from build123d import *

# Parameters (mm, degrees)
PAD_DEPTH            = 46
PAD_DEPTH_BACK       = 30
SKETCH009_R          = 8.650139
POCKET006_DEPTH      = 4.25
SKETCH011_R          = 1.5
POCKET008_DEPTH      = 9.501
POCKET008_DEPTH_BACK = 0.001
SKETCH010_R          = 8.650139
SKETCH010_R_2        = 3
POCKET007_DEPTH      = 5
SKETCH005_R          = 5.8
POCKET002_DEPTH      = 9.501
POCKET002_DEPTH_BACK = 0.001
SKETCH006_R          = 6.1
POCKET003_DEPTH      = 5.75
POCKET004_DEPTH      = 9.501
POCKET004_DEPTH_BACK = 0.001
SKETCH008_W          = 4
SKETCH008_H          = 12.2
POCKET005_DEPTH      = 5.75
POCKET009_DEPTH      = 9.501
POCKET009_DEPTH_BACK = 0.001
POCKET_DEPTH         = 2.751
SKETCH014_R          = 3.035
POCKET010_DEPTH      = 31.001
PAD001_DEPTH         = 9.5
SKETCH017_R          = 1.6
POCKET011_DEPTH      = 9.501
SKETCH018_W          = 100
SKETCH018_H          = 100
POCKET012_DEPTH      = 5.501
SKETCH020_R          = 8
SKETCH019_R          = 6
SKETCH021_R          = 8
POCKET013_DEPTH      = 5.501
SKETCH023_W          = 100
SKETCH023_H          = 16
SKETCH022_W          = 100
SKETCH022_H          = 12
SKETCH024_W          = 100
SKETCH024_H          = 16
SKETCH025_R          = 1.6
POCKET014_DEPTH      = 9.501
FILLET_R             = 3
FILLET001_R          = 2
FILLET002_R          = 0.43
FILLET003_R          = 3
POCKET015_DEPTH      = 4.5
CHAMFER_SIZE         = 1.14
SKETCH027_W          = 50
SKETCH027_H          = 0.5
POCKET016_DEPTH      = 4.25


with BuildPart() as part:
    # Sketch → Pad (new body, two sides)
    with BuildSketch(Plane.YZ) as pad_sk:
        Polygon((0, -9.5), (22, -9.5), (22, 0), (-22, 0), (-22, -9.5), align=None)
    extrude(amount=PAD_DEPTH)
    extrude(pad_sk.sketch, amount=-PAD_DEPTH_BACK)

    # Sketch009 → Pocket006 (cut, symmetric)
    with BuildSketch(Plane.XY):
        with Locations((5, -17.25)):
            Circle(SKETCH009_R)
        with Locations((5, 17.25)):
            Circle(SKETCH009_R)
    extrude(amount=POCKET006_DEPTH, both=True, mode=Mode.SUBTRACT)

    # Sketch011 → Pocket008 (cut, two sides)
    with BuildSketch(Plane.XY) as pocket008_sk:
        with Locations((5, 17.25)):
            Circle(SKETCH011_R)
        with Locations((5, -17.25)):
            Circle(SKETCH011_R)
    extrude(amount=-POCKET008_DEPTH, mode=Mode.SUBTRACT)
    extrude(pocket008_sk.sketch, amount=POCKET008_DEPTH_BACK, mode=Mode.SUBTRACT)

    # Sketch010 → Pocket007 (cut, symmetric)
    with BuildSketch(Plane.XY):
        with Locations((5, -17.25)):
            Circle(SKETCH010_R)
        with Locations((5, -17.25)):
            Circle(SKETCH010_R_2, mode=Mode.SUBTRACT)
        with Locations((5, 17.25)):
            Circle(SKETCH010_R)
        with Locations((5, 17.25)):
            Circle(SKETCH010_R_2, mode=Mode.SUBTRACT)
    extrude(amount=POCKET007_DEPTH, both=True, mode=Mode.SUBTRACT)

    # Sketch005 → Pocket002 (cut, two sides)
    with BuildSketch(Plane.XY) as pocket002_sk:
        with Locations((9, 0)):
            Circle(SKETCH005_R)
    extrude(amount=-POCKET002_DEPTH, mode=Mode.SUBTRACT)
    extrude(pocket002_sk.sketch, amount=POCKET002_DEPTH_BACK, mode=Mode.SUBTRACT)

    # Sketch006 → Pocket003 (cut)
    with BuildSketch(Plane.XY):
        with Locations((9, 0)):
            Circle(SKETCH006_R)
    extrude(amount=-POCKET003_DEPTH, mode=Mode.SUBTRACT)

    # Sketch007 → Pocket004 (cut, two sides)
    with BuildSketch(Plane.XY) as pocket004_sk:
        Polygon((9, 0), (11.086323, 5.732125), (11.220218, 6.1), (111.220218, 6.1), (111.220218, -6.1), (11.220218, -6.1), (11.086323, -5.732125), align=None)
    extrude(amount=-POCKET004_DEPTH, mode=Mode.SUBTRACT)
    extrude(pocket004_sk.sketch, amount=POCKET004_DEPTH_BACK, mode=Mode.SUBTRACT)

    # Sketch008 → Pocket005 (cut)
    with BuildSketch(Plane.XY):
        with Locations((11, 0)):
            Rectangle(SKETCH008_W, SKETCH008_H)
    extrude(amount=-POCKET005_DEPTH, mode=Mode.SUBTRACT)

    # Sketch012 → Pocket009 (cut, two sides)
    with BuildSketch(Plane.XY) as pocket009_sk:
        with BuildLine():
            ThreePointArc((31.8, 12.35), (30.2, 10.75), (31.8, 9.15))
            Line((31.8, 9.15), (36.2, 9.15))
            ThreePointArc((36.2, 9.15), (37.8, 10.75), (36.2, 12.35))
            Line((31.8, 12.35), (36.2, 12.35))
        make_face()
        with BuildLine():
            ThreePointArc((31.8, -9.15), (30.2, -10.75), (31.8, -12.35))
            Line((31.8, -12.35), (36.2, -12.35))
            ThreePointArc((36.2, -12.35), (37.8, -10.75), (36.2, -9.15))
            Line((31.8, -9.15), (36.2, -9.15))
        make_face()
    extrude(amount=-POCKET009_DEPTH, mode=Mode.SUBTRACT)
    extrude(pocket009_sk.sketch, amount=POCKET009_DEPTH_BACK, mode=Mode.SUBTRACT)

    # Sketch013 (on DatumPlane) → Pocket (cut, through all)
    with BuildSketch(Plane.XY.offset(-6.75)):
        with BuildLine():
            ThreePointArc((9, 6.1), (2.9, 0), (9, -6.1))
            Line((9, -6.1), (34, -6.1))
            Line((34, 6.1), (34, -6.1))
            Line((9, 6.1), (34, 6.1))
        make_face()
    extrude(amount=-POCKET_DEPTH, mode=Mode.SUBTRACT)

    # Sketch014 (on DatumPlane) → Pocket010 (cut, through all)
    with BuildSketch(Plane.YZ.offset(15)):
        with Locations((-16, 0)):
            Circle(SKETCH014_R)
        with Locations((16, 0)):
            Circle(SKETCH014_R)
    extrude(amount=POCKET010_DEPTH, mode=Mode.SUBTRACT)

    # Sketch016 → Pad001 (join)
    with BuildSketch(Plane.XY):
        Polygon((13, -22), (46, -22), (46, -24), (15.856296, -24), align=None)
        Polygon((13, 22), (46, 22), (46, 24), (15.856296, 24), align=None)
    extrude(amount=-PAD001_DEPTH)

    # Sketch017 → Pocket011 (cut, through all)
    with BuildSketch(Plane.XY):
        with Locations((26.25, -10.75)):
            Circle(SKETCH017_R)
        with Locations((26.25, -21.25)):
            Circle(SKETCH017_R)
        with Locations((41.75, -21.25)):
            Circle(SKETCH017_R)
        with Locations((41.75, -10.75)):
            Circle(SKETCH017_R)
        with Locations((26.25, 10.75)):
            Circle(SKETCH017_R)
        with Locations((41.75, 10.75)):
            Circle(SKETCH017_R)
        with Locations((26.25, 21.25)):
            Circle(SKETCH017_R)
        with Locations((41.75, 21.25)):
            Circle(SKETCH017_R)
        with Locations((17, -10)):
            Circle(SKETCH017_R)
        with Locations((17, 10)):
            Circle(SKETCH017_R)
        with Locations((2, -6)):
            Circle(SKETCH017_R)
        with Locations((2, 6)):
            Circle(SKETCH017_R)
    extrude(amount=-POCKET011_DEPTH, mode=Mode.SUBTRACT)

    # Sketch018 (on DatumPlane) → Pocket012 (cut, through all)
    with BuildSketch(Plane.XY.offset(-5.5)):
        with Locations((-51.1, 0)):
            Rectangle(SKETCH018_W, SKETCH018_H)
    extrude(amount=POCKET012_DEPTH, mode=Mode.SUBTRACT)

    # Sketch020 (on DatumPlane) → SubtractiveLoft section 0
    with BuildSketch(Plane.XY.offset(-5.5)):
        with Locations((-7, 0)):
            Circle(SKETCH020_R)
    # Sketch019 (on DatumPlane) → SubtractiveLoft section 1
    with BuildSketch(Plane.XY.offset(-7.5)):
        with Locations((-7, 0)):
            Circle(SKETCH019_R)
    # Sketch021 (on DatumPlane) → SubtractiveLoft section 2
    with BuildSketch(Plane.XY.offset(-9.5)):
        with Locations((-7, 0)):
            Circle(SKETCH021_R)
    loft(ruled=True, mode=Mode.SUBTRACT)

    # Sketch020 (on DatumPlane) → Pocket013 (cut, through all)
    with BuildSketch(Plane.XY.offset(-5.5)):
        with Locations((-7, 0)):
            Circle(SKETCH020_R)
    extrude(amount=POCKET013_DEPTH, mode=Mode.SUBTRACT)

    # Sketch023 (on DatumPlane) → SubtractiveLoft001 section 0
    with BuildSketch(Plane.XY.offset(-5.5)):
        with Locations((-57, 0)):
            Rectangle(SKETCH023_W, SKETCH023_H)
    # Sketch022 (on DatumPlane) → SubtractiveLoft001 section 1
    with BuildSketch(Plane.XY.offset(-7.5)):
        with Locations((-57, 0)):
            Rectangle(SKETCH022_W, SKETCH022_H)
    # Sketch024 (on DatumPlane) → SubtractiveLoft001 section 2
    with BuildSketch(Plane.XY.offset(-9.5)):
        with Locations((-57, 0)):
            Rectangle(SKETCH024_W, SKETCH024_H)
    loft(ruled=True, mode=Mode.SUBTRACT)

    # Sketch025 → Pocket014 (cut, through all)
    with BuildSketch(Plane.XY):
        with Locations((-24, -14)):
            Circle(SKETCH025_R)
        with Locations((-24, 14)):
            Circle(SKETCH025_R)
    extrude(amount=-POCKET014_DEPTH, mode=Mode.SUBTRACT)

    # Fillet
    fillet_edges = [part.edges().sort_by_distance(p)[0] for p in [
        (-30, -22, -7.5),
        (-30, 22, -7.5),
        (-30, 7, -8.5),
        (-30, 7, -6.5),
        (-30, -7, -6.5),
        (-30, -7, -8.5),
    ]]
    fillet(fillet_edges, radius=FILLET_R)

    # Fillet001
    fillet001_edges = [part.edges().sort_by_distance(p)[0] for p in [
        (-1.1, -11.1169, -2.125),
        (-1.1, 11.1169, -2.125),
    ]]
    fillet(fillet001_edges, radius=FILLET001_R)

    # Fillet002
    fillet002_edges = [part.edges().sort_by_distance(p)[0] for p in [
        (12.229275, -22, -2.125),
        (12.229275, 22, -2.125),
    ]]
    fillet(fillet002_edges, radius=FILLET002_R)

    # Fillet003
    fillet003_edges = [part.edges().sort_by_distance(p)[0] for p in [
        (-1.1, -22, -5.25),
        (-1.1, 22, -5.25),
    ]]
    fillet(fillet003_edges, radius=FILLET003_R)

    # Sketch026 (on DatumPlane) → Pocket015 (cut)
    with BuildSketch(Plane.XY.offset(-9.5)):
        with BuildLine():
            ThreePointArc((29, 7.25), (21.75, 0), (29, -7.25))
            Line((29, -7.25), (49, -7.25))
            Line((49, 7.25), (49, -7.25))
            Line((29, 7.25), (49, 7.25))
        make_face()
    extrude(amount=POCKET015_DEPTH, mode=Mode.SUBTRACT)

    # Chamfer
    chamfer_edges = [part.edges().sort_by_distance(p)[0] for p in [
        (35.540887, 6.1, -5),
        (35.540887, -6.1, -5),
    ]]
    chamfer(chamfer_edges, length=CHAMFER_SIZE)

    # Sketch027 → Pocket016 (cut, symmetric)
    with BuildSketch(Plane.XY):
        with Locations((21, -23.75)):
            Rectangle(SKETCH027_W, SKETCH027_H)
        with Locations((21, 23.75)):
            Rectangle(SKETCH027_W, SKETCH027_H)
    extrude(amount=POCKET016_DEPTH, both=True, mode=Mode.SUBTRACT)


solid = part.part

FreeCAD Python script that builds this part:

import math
import FreeCAD as App
import Part
import Sketcher
Q = App.Units.Quantity


def edges_at(feature, points):
    """Names of the edges that pass closest to the given points."""
    edges = feature.Shape.Edges
    near = lambda p: min(range(len(edges)), key=lambda i: edges[i].distToShape(Part.Vertex(*p))[0])
    return sorted({f"Edge{near(p) + 1}" for p in points})

doc = App.newDocument("Part")
body = doc.addObject("PartDesign::Body", "Body")

# Sketch on YZ plane
sketch1 = body.newObject("Sketcher::SketchObject", "Sketch")
sketch1.AttachmentSupport = (doc.getObject("YZ_Plane"), [""])
sketch1.MapMode = "FlatFace"
sketch1.addGeometry([
    Part.LineSegment(App.Vector(22, -9.5, 0), App.Vector(22, 0, 0)),
    Part.LineSegment(App.Vector(22, 0, 0), App.Vector(-22, 0, 0)),
    Part.LineSegment(App.Vector(-22, 0, 0), App.Vector(-22, -9.5, 0)),
    Part.LineSegment(App.Vector(-22, -9.5, 0), App.Vector(22, -9.5, 0)),
], False)
sketch1.addConstraint([
    Sketcher.Constraint("Coincident", 0, 2, 1, 1),
    Sketcher.Constraint("Coincident", 1, 2, 2, 1),
    Sketcher.Constraint("Coincident", 2, 2, 3, 1),
    Sketcher.Constraint("Coincident", 3, 2, 0, 1),
    Sketcher.Constraint("Vertical", 0),
    Sketcher.Constraint("Horizontal", 1),
    Sketcher.Constraint("Vertical", 2),
    Sketcher.Constraint("Horizontal", 3),
    Sketcher.Constraint("Symmetric", 0, 2, 1, 2, -1, 1),
    Sketcher.Constraint("DistanceX", 1, 2, 1, 1, Q("44 mm")),
    Sketcher.Constraint("DistanceY", 0, 1, 0, 2, Q("9.5 mm")),
])
pad1 = body.newObject("PartDesign::Pad", "Pad")
pad1.Profile = sketch1
pad1.Type = "TwoLengths"
pad1.Length = 46
pad1.Length2 = 30

# Sketch on XY plane
sketch2 = body.newObject("Sketcher::SketchObject", "Sketch001")
sketch2.AttachmentSupport = (doc.getObject("XY_Plane"), [""])
sketch2.MapMode = "FlatFace"
sketch2.addGeometry([
    Part.Circle(App.Vector(5, -17.25, 0), App.Vector(0, 0, 1), 8.650139),
    Part.Circle(App.Vector(5, 17.25, 0), App.Vector(0, 0, 1), 8.650139),
], False)
sketch2.addConstraint([
    Sketcher.Constraint("Equal", 0, 1),
    Sketcher.Constraint("Symmetric", 0, 3, 1, 3, -1),
    Sketcher.Constraint("DistanceX", -1, 1, 0, 3, Q("5 mm")),
    Sketcher.Constraint("DistanceY", 0, 3, 1, 3, Q("34.5 mm")),
    Sketcher.Constraint("Diameter", 0, Q("17.300278 mm")),
])
pocket1 = body.newObject("PartDesign::Pocket", "Pocket")
pocket1.Profile = sketch2
pocket1.Length = 8.5
pocket1.Midplane = True

# Sketch on XY plane
sketch3 = body.newObject("Sketcher::SketchObject", "Sketch002")
sketch3.AttachmentSupport = (doc.getObject("XY_Plane"), [""])
sketch3.MapMode = "FlatFace"
sketch3.addGeometry([
    Part.Circle(App.Vector(5, 17.25, 0), App.Vector(0, 0, 1), 1.5),
    Part.Circle(App.Vector(5, -17.25, 0), App.Vector(0, 0, 1), 1.5),
], False)
sketch3.addConstraint([
    Sketcher.Constraint("Equal", 0, 1),
    Sketcher.Constraint("Symmetric", 0, 3, 1, 3, -1),
    Sketcher.Constraint("Diameter", 0, Q("3 mm")),
    Sketcher.Constraint("DistanceX", -1, 1, 0, 3, Q("5 mm")),
    Sketcher.Constraint("DistanceY", 1, 3, 0, 3, Q("34.5 mm")),
])
pocket2 = body.newObject("PartDesign::Pocket", "Pocket001")
pocket2.Profile = sketch3
pocket2.Type = "ThroughAll"
pocket2.Midplane = True

# Sketch on XY plane
sketch4 = body.newObject("Sketcher::SketchObject", "Sketch003")
sketch4.AttachmentSupport = (doc.getObject("XY_Plane"), [""])
sketch4.MapMode = "FlatFace"
sketch4.addGeometry([
    Part.Circle(App.Vector(5, -17.25, 0), App.Vector(0, 0, 1), 8.650139),
    Part.Circle(App.Vector(5, -17.25, 0), App.Vector(0, 0, 1), 3),
    Part.Circle(App.Vector(5, 17.25, 0), App.Vector(0, 0, 1), 8.650139),
    Part.Circle(App.Vector(5, 17.25, 0), App.Vector(0, 0, 1), 3),
], False)
sketch4.addConstraint([
    Sketcher.Constraint("Coincident", 1, 3, 0, 3),
    Sketcher.Constraint("Coincident", 3, 3, 2, 3),
    Sketcher.Constraint("Equal", 0, 2),
    Sketcher.Constraint("Equal", 1, 3),
    Sketcher.Constraint("Symmetric", 0, 3, 2, 3, -1),
    Sketcher.Constraint("Diameter", 1, Q("6 mm")),
    Sketcher.Constraint("DistanceX", -1, 1, 0, 3, Q("5 mm")),
    Sketcher.Constraint("DistanceY", 0, 3, 2, 3, Q("34.5 mm")),
    Sketcher.Constraint("Diameter", 0, Q("17.300278 mm")),
])
pocket3 = body.newObject("PartDesign::Pocket", "Pocket002")
pocket3.Profile = sketch4
pocket3.Length = 10
pocket3.Midplane = True

# Sketch on XY plane
sketch5 = body.newObject("Sketcher::SketchObject", "Sketch004")
sketch5.AttachmentSupport = (doc.getObject("XY_Plane"), [""])
sketch5.MapMode = "FlatFace"
sketch5.addGeometry(Part.Circle(App.Vector(9, 0, 0), App.Vector(0, 0, 1), 5.8), False)
sketch5.addConstraint([
    Sketcher.Constraint("PointOnObject", 0, 3, -1),
    Sketcher.Constraint("Diameter", 0, Q("11.6 mm")),
    Sketcher.Constraint("DistanceX", -1, 1, 0, 3, Q("9 mm")),
])
pocket4 = body.newObject("PartDesign::Pocket", "Pocket003")
pocket4.Profile = sketch5
pocket4.Type = "ThroughAll"
pocket4.Midplane = True

# Sketch on XY plane
sketch6 = body.newObject("Sketcher::SketchObject", "Sketch005")
sketch6.AttachmentSupport = (doc.getObject("XY_Plane"), [""])
sketch6.MapMode = "FlatFace"
sketch6.addGeometry(Part.Circle(App.Vector(9, 0, 0), App.Vector(0, 0, 1), 6.1), False)
sketch6.addConstraint([
    Sketcher.Constraint("PointOnObject", 0, 3, -1),
    Sketcher.Constraint("Diameter", 0, Q("12.2 mm")),
    Sketcher.Constraint("DistanceX", -1, 1, 0, 3, Q("9 mm")),
])
pocket5 = body.newObject("PartDesign::Pocket", "Pocket004")
pocket5.Profile = sketch6
pocket5.Length = 5.75

# Sketch on XY plane
sketch7 = body.newObject("Sketcher::SketchObject", "Sketch006")
sketch7.AttachmentSupport = (doc.getObject("XY_Plane"), [""])
sketch7.MapMode = "FlatFace"
sketch7.addGeometry([
    Part.LineSegment(App.Vector(11.086323, 5.732125, 0), App.Vector(9, 0, 0)),  # 0
    Part.LineSegment(App.Vector(9, 0, 0), App.Vector(11.086323, -5.732125, 0)),  # 1
    Part.LineSegment(App.Vector(11.086323, -5.732125, 0), App.Vector(11.220218, -6.1, 0)),  # 2
    Part.LineSegment(App.Vector(11.220218, -6.1, 0), App.Vector(111.220218, -6.1, 0)),  # 3
    Part.LineSegment(App.Vector(111.220218, -6.1, 0), App.Vector(111.220218, 6.1, 0)),  # 4
    Part.LineSegment(App.Vector(111.220218, 6.1, 0), App.Vector(11.220218, 6.1, 0)),  # 5
    Part.LineSegment(App.Vector(11.220218, 6.1, 0), App.Vector(11.086323, 5.732125, 0)),  # 6
], False)
sketch7.addConstraint([
    Sketcher.Constraint("Coincident", 0, 2, 1, 1),
    Sketcher.Constraint("Coincident", 1, 2, 2, 1),
    Sketcher.Constraint("Coincident", 2, 2, 3, 1),
    Sketcher.Constraint("Coincident", 3, 2, 4, 1),
    Sketcher.Constraint("Coincident", 4, 2, 5, 1),
    Sketcher.Constraint("Coincident", 5, 2, 6, 1),
    Sketcher.Constraint("Coincident", 6, 2, 0, 1),
    Sketcher.Constraint("Horizontal", 3),
    Sketcher.Constraint("Vertical", 4),
    Sketcher.Constraint("Horizontal", 5),
    Sketcher.Constraint("Symmetric", 2, 2, 5, 2, -1),
    Sketcher.Constraint("Symmetric", 1, 2, 6, 2, -1),
    Sketcher.Constraint("PointOnObject", 0, 2, -1),
    Sketcher.Constraint("Parallel", 1, 2),
    Sketcher.Constraint("DistanceX", 3, 1, 3, 2, Q("100 mm")),
    Sketcher.Constraint("Angle", 0, Q("-110.000001 deg")),
    Sketcher.Constraint("DistanceY", 4, 1, 4, 2, Q("12.2 mm")),
    Sketcher.Constraint("DistanceX", -1, 1, 0, 2, Q("9 mm")),
    Sketcher.Constraint("Distance", 0, Q("6.1 mm")),
])
pocket6 = body.newObject("PartDesign::Pocket", "Pocket005")
pocket6.Profile = sketch7
pocket6.Type = "ThroughAll"
pocket6.Midplane = True

# Sketch on XY plane
sketch8 = body.newObject("Sketcher::SketchObject", "Sketch007")
sketch8.AttachmentSupport = (doc.getObject("XY_Plane"), [""])
sketch8.MapMode = "FlatFace"
sketch8.addGeometry([
    Part.LineSegment(App.Vector(9, 6.1, 0), App.Vector(9, -6.1, 0)),
    Part.LineSegment(App.Vector(9, -6.1, 0), App.Vector(13, -6.1, 0)),
    Part.LineSegment(App.Vector(13, -6.1, 0), App.Vector(13, 6.1, 0)),
    Part.LineSegment(App.Vector(13, 6.1, 0), App.Vector(9, 6.1, 0)),
], False)
sketch8.addConstraint([
    Sketcher.Constraint("Coincident", 0, 2, 1, 1),
    Sketcher.Constraint("Coincident", 1, 2, 2, 1),
    Sketcher.Constraint("Coincident", 2, 2, 3, 1),
    Sketcher.Constraint("Coincident", 3, 2, 0, 1),
    Sketcher.Constraint("Vertical", 0),
    Sketcher.Constraint("Horizontal", 1),
    Sketcher.Constraint("Vertical", 2),
    Sketcher.Constraint("Horizontal", 3),
    Sketcher.Constraint("DistanceX", 1, 1, 1, 2, Q("4 mm")),
    Sketcher.Constraint("DistanceY", 0, 2, 0, 1, Q("12.2 mm")),
    Sketcher.Constraint("DistanceX", -1, 1, 0, 2, Q("9 mm")),
    Sketcher.Constraint("DistanceY", 0, 2, -1, 1, Q("6.1 mm")),
])
pocket7 = body.newObject("PartDesign::Pocket", "Pocket006")
pocket7.Profile = sketch8
pocket7.Length = 5.75

# Sketch on XY plane
sketch9 = body.newObject("Sketcher::SketchObject", "Sketch008")
sketch9.AttachmentSupport = (doc.getObject("XY_Plane"), [""])
sketch9.MapMode = "FlatFace"
sketch9.addGeometry([
    Part.ArcOfCircle(Part.Circle(App.Vector(31.8, 10.75, 0), App.Vector(0, 0, 1), 1.6), math.radians(90), math.radians(270)),  # 0
    Part.LineSegment(App.Vector(31.8, 9.15, 0), App.Vector(36.2, 9.15, 0)),  # 1
    Part.ArcOfCircle(Part.Circle(App.Vector(36.2, 10.75, 0), App.Vector(0, 0, 1), 1.6), math.radians(-90), math.radians(90)),  # 2
    Part.LineSegment(App.Vector(36.2, 12.35, 0), App.Vector(31.8, 12.35, 0)),  # 3
    Part.ArcOfCircle(Part.Circle(App.Vector(31.8, -10.75, 0), App.Vector(0, 0, 1), 1.6), math.radians(90), math.radians(270)),  # 4
    Part.LineSegment(App.Vector(31.8, -12.35, 0), App.Vector(36.2, -12.35, 0)),  # 5
    Part.ArcOfCircle(Part.Circle(App.Vector(36.2, -10.75, 0), App.Vector(0, 0, 1), 1.6), math.radians(-90), math.radians(90)),  # 6
    Part.LineSegment(App.Vector(36.2, -9.15, 0), App.Vector(31.8, -9.15, 0)),  # 7
], False)
sketch9.addConstraint([
    Sketcher.Constraint("Tangent", 0, 2, 1, 1),
    Sketcher.Constraint("Tangent", 1, 2, 2, 1),
    Sketcher.Constraint("Tangent", 2, 2, 3, 1),
    Sketcher.Constraint("Tangent", 3, 2, 0, 1),
    Sketcher.Constraint("Tangent", 4, 2, 5, 1),
    Sketcher.Constraint("Tangent", 5, 2, 6, 1),
    Sketcher.Constraint("Tangent", 6, 2, 7, 1),
    Sketcher.Constraint("Tangent", 7, 2, 4, 1),
    Sketcher.Constraint("Horizontal", 1),
    Sketcher.Constraint("Horizontal", 3),
    Sketcher.Constraint("Horizontal", 5),
    Sketcher.Constraint("Horizontal", 7),
    Sketcher.Constraint("Equal", 2, 4),
    Sketcher.Constraint("Symmetric", 0, 3, 4, 3, -1),
    Sketcher.Constraint("Vertical", 2, 3, 6, 3),
    Sketcher.Constraint("Radius", 0, Q("1.6 mm")),
    Sketcher.Constraint("DistanceX", 1, 1, 1, 2, Q("4.4 mm")),
    Sketcher.Constraint("DistanceX", -1, 1, 0, 3, Q("31.8 mm")),
    Sketcher.Constraint("DistanceY", 4, 3, 0, 3, Q("21.5 mm")),
])
pocket8 = body.newObject("PartDesign::Pocket", "Pocket007")
pocket8.Profile = sketch9
pocket8.Type = "ThroughAll"
pocket8.Midplane = True

# Sketch on XY plane
sketch10 = body.newObject("Sketcher::SketchObject", "Sketch009")
sketch10.AttachmentSupport = (doc.getObject("XY_Plane"), [""])
sketch10.MapMode = "FlatFace"
sketch10.AttachmentOffset = App.Placement(App.Vector(0, 0, -6.75), App.Rotation())
sketch10.addGeometry([
    Part.ArcOfCircle(Part.Circle(App.Vector(9, 0, 0), App.Vector(0, 0, 1), 6.1), math.radians(90), math.radians(270)),
    Part.LineSegment(App.Vector(9, -6.1, 0), App.Vector(34, -6.1, 0)),
    Part.LineSegment(App.Vector(34, -6.1, 0), App.Vector(34, 6.1, 0)),
    Part.LineSegment(App.Vector(34, 6.1, 0), App.Vector(9, 6.1, 0)),
], False)
sketch10.addConstraint([
    Sketcher.Constraint("Tangent", 0, 2, 1, 1),
    Sketcher.Constraint("Coincident", 1, 2, 2, 1),
    Sketcher.Constraint("Coincident", 2, 2, 3, 1),
    Sketcher.Constraint("Tangent", 3, 2, 0, 1),
    Sketcher.Constraint("Horizontal", 1),
    Sketcher.Constraint("Vertical", 2),
    Sketcher.Constraint("Horizontal", 3),
    Sketcher.Constraint("PointOnObject", 0, 3, -1),
    Sketcher.Constraint("Radius", 0, Q("6.1 mm")),
    Sketcher.Constraint("DistanceX", 1, 1, 1, 2, Q("25 mm")),
    Sketcher.Constraint("DistanceX", -1, 1, 0, 3, Q("9 mm")),
])
pocket9 = body.newObject("PartDesign::Pocket", "Pocket008")
pocket9.Profile = sketch10
pocket9.Type = "ThroughAll"

# Sketch on YZ plane
sketch11 = body.newObject("Sketcher::SketchObject", "Sketch010")
sketch11.AttachmentSupport = (doc.getObject("YZ_Plane"), [""])
sketch11.MapMode = "FlatFace"
sketch11.AttachmentOffset = App.Placement(App.Vector(0, 0, 15), App.Rotation())
sketch11.addGeometry([
    Part.Circle(App.Vector(-16, 0, 0), App.Vector(0, 0, 1), 3.035),
    Part.Circle(App.Vector(16, 0, 0), App.Vector(0, 0, 1), 3.035),
], False)
sketch11.addConstraint([
    Sketcher.Constraint("Equal", 0, 1),
    Sketcher.Constraint("Symmetric", 0, 3, 1, 3, -1, 1),
    Sketcher.Constraint("PointOnObject", 0, 3, -1),
    Sketcher.Constraint("Diameter", 0, Q("6.07 mm")),
    Sketcher.Constraint("DistanceX", 0, 3, -1, 1, Q("16 mm")),
])
pocket10 = body.newObject("PartDesign::Pocket", "Pocket009")
pocket10.Profile = sketch11
pocket10.Type = "ThroughAll"
pocket10.Reversed = True

# Sketch on XY plane
sketch12 = body.newObject("Sketcher::SketchObject", "Sketch011")
sketch12.AttachmentSupport = (doc.getObject("XY_Plane"), [""])
sketch12.MapMode = "FlatFace"
sketch12.addGeometry([
    Part.LineSegment(App.Vector(46, -22, 0), App.Vector(13, -22, 0)),  # 0
    Part.LineSegment(App.Vector(13, -22, 0), App.Vector(15.856296, -24, 0)),  # 1
    Part.LineSegment(App.Vector(15.856296, -24, 0), App.Vector(46, -24, 0)),  # 2
    Part.LineSegment(App.Vector(46, -24, 0), App.Vector(46, -22, 0)),  # 3
    Part.LineSegment(App.Vector(13, 22, 0), App.Vector(46, 22, 0)),  # 4
    Part.LineSegment(App.Vector(46, 22, 0), App.Vector(46, 24, 0)),  # 5
    Part.LineSegment(App.Vector(46, 24, 0), App.Vector(15.856296, 24, 0)),  # 6
    Part.LineSegment(App.Vector(15.856296, 24, 0), App.Vector(13, 22, 0)),  # 7
], False)
sketch12.addConstraint([
    Sketcher.Constraint("Coincident", 0, 2, 1, 1),
    Sketcher.Constraint("Coincident", 1, 2, 2, 1),
    Sketcher.Constraint("Coincident", 2, 2, 3, 1),
    Sketcher.Constraint("Coincident", 3, 2, 0, 1),
    Sketcher.Constraint("Coincident", 4, 2, 5, 1),
    Sketcher.Constraint("Coincident", 5, 2, 6, 1),
    Sketcher.Constraint("Coincident", 6, 2, 7, 1),
    Sketcher.Constraint("Coincident", 7, 2, 4, 1),
    Sketcher.Constraint("Horizontal", 0),
    Sketcher.Constraint("Horizontal", 2),
    Sketcher.Constraint("Vertical", 3),
    Sketcher.Constraint("Horizontal", 4),
    Sketcher.Constraint("Vertical", 5),
    Sketcher.Constraint("Horizontal", 6),
    Sketcher.Constraint("Symmetric", 3, 2, 4, 2, -1),
    Sketcher.Constraint("Symmetric", 1, 2, 6, 2, -1),
    Sketcher.Constraint("Vertical", 0, 2, 7, 2),
    Sketcher.Constraint("DistanceX", 0, 2, 0, 1, Q("33 mm")),
    Sketcher.Constraint("DistanceY", 3, 1, 3, 2, Q("2 mm")),
    Sketcher.Constraint("Angle", 1, Q("-35 deg")),
    Sketcher.Constraint("DistanceX", -1, 1, 0, 2, Q("13 mm")),
    Sketcher.Constraint("DistanceY", 0, 2, -1, 1, Q("22 mm")),
])
pad2 = body.newObject("PartDesign::Pad", "Pad001")
pad2.Profile = sketch12
pad2.Length = 9.5
pad2.Reversed = True

# Sketch on XY plane
sketch13 = body.newObject("Sketcher::SketchObject", "Sketch012")
sketch13.AttachmentSupport = (doc.getObject("XY_Plane"), [""])
sketch13.MapMode = "FlatFace"
sketch13.addGeometry([
    Part.Circle(App.Vector(26.25, -10.75, 0), App.Vector(0, 0, 1), 1.6),  # 0
    Part.Circle(App.Vector(26.25, -21.25, 0), App.Vector(0, 0, 1), 1.6),  # 1
    Part.Circle(App.Vector(41.75, -21.25, 0), App.Vector(0, 0, 1), 1.6),  # 2
    Part.Circle(App.Vector(41.75, -10.75, 0), App.Vector(0, 0, 1), 1.6),  # 3
    Part.Circle(App.Vector(26.25, 10.75, 0), App.Vector(0, 0, 1), 1.6),  # 4
    Part.Circle(App.Vector(41.75, 10.75, 0), App.Vector(0, 0, 1), 1.6),  # 5
    Part.Circle(App.Vector(26.25, 21.25, 0), App.Vector(0, 0, 1), 1.6),  # 6
    Part.Circle(App.Vector(41.75, 21.25, 0), App.Vector(0, 0, 1), 1.6),  # 7
    Part.Circle(App.Vector(17, -10, 0), App.Vector(0, 0, 1), 1.6),  # 8
    Part.Circle(App.Vector(17, 10, 0), App.Vector(0, 0, 1), 1.6),  # 9
    Part.Circle(App.Vector(2, -6, 0), App.Vector(0, 0, 1), 1.6),  # 10
    Part.Circle(App.Vector(2, 6, 0), App.Vector(0, 0, 1), 1.6),  # 11
], False)
sketch13.addConstraint([
    Sketcher.Constraint("Equal", 0, 1),
    Sketcher.Constraint("Equal", 1, 2),
    Sketcher.Constraint("Equal", 2, 3),
    Sketcher.Constraint("Equal", 3, 4),
    Sketcher.Constraint("Equal", 4, 5),
    Sketcher.Constraint("Equal", 5, 6),
    Sketcher.Constraint("Equal", 6, 7),
    Sketcher.Constraint("Equal", 7, 8),
    Sketcher.Constraint("Equal", 8, 9),
    Sketcher.Constraint("Equal", 9, 10),
    Sketcher.Constraint("Equal", 10, 11),
    Sketcher.Constraint("Symmetric", 0, 3, 4, 3, -1),
    Sketcher.Constraint("Symmetric", 3, 3, 5, 3, -1),
    Sketcher.Constraint("Symmetric", 1, 3, 6, 3, -1),
    Sketcher.Constraint("Symmetric", 2, 3, 7, 3, -1),
    Sketcher.Constraint("Symmetric", 8, 3, 9, 3, -1),
    Sketcher.Constraint("Symmetric", 10, 3, 11, 3, -1),
    Sketcher.Constraint("Horizontal", 1, 3, 2, 3),
    Sketcher.Constraint("Horizontal", 0, 3, 3, 3),
    Sketcher.Constraint("Vertical", 0, 3, 1, 3),
    Sketcher.Constraint("Vertical", 2, 3, 3, 3),
    Sketcher.Constraint("Diameter", 0, Q("3.2 mm")),
    Sketcher.Constraint("DistanceX", -1, 1, 8, 3, Q("17 mm")),
    Sketcher.Constraint("DistanceY", 8, 3, -1, 1, Q("10 mm")),
    Sketcher.Constraint("DistanceX", -1, 1, 10, 3, Q("2 mm")),
    Sketcher.Constraint("DistanceY", 10, 3, -1, 1, Q("6 mm")),
    Sketcher.Constraint("DistanceY", 1, 3, 4, 3, Q("32 mm")),
    Sketcher.Constraint("DistanceY", 1, 3, 0, 3, Q("10.5 mm")),
    Sketcher.Constraint("DistanceX", 1, 3, 2, 3, Q("15.5 mm")),
    Sketcher.Constraint("DistanceX", -1, 1, 0, 3, Q("26.25 mm")),
])
pocket11 = body.newObject("PartDesign::Pocket", "Pocket010")
pocket11.Profile = sketch13
pocket11.Type = "ThroughAll"

# Sketch on XY plane
sketch14 = body.newObject("Sketcher::SketchObject", "Sketch013")
sketch14.AttachmentSupport = (doc.getObject("XY_Plane"), [""])
sketch14.MapMode = "FlatFace"
sketch14.AttachmentOffset = App.Placement(App.Vector(0, 0, -5.5), App.Rotation())
sketch14.addGeometry([
    Part.LineSegment(App.Vector(-101.1, 50, 0), App.Vector(-101.1, -50, 0)),
    Part.LineSegment(App.Vector(-101.1, -50, 0), App.Vector(-1.1, -50, 0)),
    Part.LineSegment(App.Vector(-1.1, -50, 0), App.Vector(-1.1, 50, 0)),
    Part.LineSegment(App.Vector(-1.1, 50, 0), App.Vector(-101.1, 50, 0)),
], False)
sketch14.addConstraint([
    Sketcher.Constraint("Coincident", 0, 2, 1, 1),
    Sketcher.Constraint("Coincident", 1, 2, 2, 1),
    Sketcher.Constraint("Coincident", 2, 2, 3, 1),
    Sketcher.Constraint("Coincident", 3, 2, 0, 1),
    Sketcher.Constraint("Vertical", 0),
    Sketcher.Constraint("Horizontal", 1),
    Sketcher.Constraint("Vertical", 2),
    Sketcher.Constraint("Horizontal", 3),
    Sketcher.Constraint("Equal", 3, 0),
    Sketcher.Constraint("DistanceX", 1, 1, 1, 2, Q("100 mm")),
    Sketcher.Constraint("DistanceY", 0, 2, -1, 1, Q("50 mm")),
    Sketcher.Constraint("DistanceX", 0, 2, -1, 1, Q("101.1 mm")),
])
pocket12 = body.newObject("PartDesign::Pocket", "Pocket011")
pocket12.Profile = sketch14
pocket12.Type = "ThroughAll"
pocket12.Reversed = True

# Sketch on XY plane
sketch15 = body.newObject("Sketcher::SketchObject", "Sketch014")
sketch15.AttachmentSupport = (doc.getObject("XY_Plane"), [""])
sketch15.MapMode = "FlatFace"
sketch15.AttachmentOffset = App.Placement(App.Vector(0, 0, -5.5), App.Rotation())
sketch15.addGeometry(Part.Circle(App.Vector(-7, 0, 0), App.Vector(0, 0, 1), 8), False)
sketch15.addConstraint([
    Sketcher.Constraint("PointOnObject", 0, 3, -1),
    Sketcher.Constraint("Diameter", 0, Q("16 mm")),
    Sketcher.Constraint("DistanceX", 0, 3, -1, 1, Q("7 mm")),
])

# Sketch on XY plane
sketch16 = body.newObject("Sketcher::SketchObject", "Sketch015")
sketch16.AttachmentSupport = (doc.getObject("XY_Plane"), [""])
sketch16.MapMode = "FlatFace"
sketch16.AttachmentOffset = App.Placement(App.Vector(0, 0, -7.5), App.Rotation())
sketch16.addGeometry(Part.Circle(App.Vector(-7, 0, 0), App.Vector(0, 0, 1), 6), False)
sketch16.addConstraint([
    Sketcher.Constraint("PointOnObject", 0, 3, -1),
    Sketcher.Constraint("Diameter", 0, Q("12 mm")),
    Sketcher.Constraint("DistanceX", 0, 3, -1, 1, Q("7 mm")),
])

# Sketch on XY plane
sketch17 = body.newObject("Sketcher::SketchObject", "Sketch016")
sketch17.AttachmentSupport = (doc.getObject("XY_Plane"), [""])
sketch17.MapMode = "FlatFace"
sketch17.AttachmentOffset = App.Placement(App.Vector(0, 0, -9.5), App.Rotation())
sketch17.addGeometry(Part.Circle(App.Vector(-7, 0, 0), App.Vector(0, 0, 1), 8), False)
sketch17.addConstraint([
    Sketcher.Constraint("PointOnObject", 0, 3, -1),
    Sketcher.Constraint("Diameter", 0, Q("16 mm")),
    Sketcher.Constraint("DistanceX", 0, 3, -1, 1, Q("7 mm")),
])

subtractiveloft = body.newObject("PartDesign::SubtractiveLoft", "SubtractiveLoft")
subtractiveloft.Profile = sketch15
subtractiveloft.Sections = [sketch16, sketch17]
subtractiveloft.Ruled = True

# Sketch on XY plane
sketch18 = body.newObject("Sketcher::SketchObject", "Sketch017")
sketch18.AttachmentSupport = (doc.getObject("XY_Plane"), [""])
sketch18.MapMode = "FlatFace"
sketch18.AttachmentOffset = App.Placement(App.Vector(0, 0, -5.5), App.Rotation())
sketch18.addGeometry(Part.Circle(App.Vector(-7, 0, 0), App.Vector(0, 0, 1), 8), False)
sketch18.addConstraint([
    Sketcher.Constraint("PointOnObject", 0, 3, -1),
    Sketcher.Constraint("Diameter", 0, Q("16 mm")),
    Sketcher.Constraint("DistanceX", 0, 3, -1, 1, Q("7 mm")),
])
pocket13 = body.newObject("PartDesign::Pocket", "Pocket012")
pocket13.Profile = sketch18
pocket13.Type = "ThroughAll"
pocket13.Reversed = True

# Sketch on XY plane
sketch19 = body.newObject("Sketcher::SketchObject", "Sketch018")
sketch19.AttachmentSupport = (doc.getObject("XY_Plane"), [""])
sketch19.MapMode = "FlatFace"
sketch19.AttachmentOffset = App.Placement(App.Vector(0, 0, -5.5), App.Rotation())
sketch19.addGeometry([
    Part.LineSegment(App.Vector(-107, 8, 0), App.Vector(-107, -8, 0)),
    Part.LineSegment(App.Vector(-107, -8, 0), App.Vector(-7, -8, 0)),
    Part.LineSegment(App.Vector(-7, -8, 0), App.Vector(-7, 8, 0)),
    Part.LineSegment(App.Vector(-7, 8, 0), App.Vector(-107, 8, 0)),
], False)
sketch19.addConstraint([
    Sketcher.Constraint("Coincident", 0, 2, 1, 1),
    Sketcher.Constraint("Coincident", 1, 2, 2, 1),
    Sketcher.Constraint("Coincident", 2, 2, 3, 1),
    Sketcher.Constraint("Coincident", 3, 2, 0, 1),
    Sketcher.Constraint("Vertical", 0),
    Sketcher.Constraint("Horizontal", 1),
    Sketcher.Constraint("Vertical", 2),
    Sketcher.Constraint("Horizontal", 3),
    Sketcher.Constraint("DistanceX", 1, 1, 1, 2, Q("100 mm")),
    Sketcher.Constraint("DistanceY", 0, 2, 0, 1, Q("16 mm")),
    Sketcher.Constraint("DistanceX", 0, 2, -1, 1, Q("107 mm")),
    Sketcher.Constraint("DistanceY", 0, 2, -1, 1, Q("8 mm")),
])

# Sketch on XY plane
sketch20 = body.newObject("Sketcher::SketchObject", "Sketch019")
sketch20.AttachmentSupport = (doc.getObject("XY_Plane"), [""])
sketch20.MapMode = "FlatFace"
sketch20.AttachmentOffset = App.Placement(App.Vector(0, 0, -7.5), App.Rotation())
sketch20.addGeometry([
    Part.LineSegment(App.Vector(-107, 6, 0), App.Vector(-107, -6, 0)),
    Part.LineSegment(App.Vector(-107, -6, 0), App.Vector(-7, -6, 0)),
    Part.LineSegment(App.Vector(-7, -6, 0), App.Vector(-7, 6, 0)),
    Part.LineSegment(App.Vector(-7, 6, 0), App.Vector(-107, 6, 0)),
], False)
sketch20.addConstraint([
    Sketcher.Constraint("Coincident", 0, 2, 1, 1),
    Sketcher.Constraint("Coincident", 1, 2, 2, 1),
    Sketcher.Constraint("Coincident", 2, 2, 3, 1),
    Sketcher.Constraint("Coincident", 3, 2, 0, 1),
    Sketcher.Constraint("Vertical", 0),
    Sketcher.Constraint("Horizontal", 1),
    Sketcher.Constraint("Vertical", 2),
    Sketcher.Constraint("Horizontal", 3),
    Sketcher.Constraint("DistanceX", 1, 1, 1, 2, Q("100 mm")),
    Sketcher.Constraint("DistanceY", 0, 2, 0, 1, Q("12 mm")),
    Sketcher.Constraint("DistanceX", 0, 2, -1, 1, Q("107 mm")),
    Sketcher.Constraint("DistanceY", 0, 2, -1, 1, Q("6 mm")),
])

# Sketch on XY plane
sketch21 = body.newObject("Sketcher::SketchObject", "Sketch020")
sketch21.AttachmentSupport = (doc.getObject("XY_Plane"), [""])
sketch21.MapMode = "FlatFace"
sketch21.AttachmentOffset = App.Placement(App.Vector(0, 0, -9.5), App.Rotation())
sketch21.addGeometry([
    Part.LineSegment(App.Vector(-107, 8, 0), App.Vector(-107, -8, 0)),
    Part.LineSegment(App.Vector(-107, -8, 0), App.Vector(-7, -8, 0)),
    Part.LineSegment(App.Vector(-7, -8, 0), App.Vector(-7, 8, 0)),
    Part.LineSegment(App.Vector(-7, 8, 0), App.Vector(-107, 8, 0)),
], False)
sketch21.addConstraint([
    Sketcher.Constraint("Coincident", 0, 2, 1, 1),
    Sketcher.Constraint("Coincident", 1, 2, 2, 1),
    Sketcher.Constraint("Coincident", 2, 2, 3, 1),
    Sketcher.Constraint("Coincident", 3, 2, 0, 1),
    Sketcher.Constraint("Vertical", 0),
    Sketcher.Constraint("Horizontal", 1),
    Sketcher.Constraint("Vertical", 2),
    Sketcher.Constraint("Horizontal", 3),
    Sketcher.Constraint("DistanceX", 1, 1, 1, 2, Q("100 mm")),
    Sketcher.Constraint("DistanceY", 0, 2, 0, 1, Q("16 mm")),
    Sketcher.Constraint("DistanceX", 0, 2, -1, 1, Q("107 mm")),
    Sketcher.Constraint("DistanceY", 0, 2, -1, 1, Q("8 mm")),
])

subtractiveloft2 = body.newObject("PartDesign::SubtractiveLoft", "SubtractiveLoft001")
subtractiveloft2.Profile = sketch19
subtractiveloft2.Sections = [sketch20, sketch21]
subtractiveloft2.Ruled = True

# Sketch on XY plane
sketch22 = body.newObject("Sketcher::SketchObject", "Sketch021")
sketch22.AttachmentSupport = (doc.getObject("XY_Plane"), [""])
sketch22.MapMode = "FlatFace"
sketch22.addGeometry([
    Part.Circle(App.Vector(-24, -14, 0), App.Vector(0, 0, 1), 1.6),
    Part.Circle(App.Vector(-24, 14, 0), App.Vector(0, 0, 1), 1.6),
], False)
sketch22.addConstraint([
    Sketcher.Constraint("Equal", 0, 1),
    Sketcher.Constraint("Symmetric", 0, 3, 1, 3, -1),
    Sketcher.Constraint("Diameter", 0, Q("3.2 mm")),
    Sketcher.Constraint("DistanceX", 0, 3, -1, 1, Q("24 mm")),
    Sketcher.Constraint("DistanceY", 0, 3, -1, 1, Q("14 mm")),
])
pocket14 = body.newObject("PartDesign::Pocket", "Pocket013")
pocket14.Profile = sketch22
pocket14.Type = "ThroughAll"
doc.recompute()

fillet = body.newObject("PartDesign::Fillet", "Fillet")
fillet.Base = (pocket14, edges_at(pocket14, [
    (-30, -22, -7.5),
    (-30, 22, -7.5),
    (-30, 7, -8.5),
    (-30, 7, -6.5),
    (-30, -7, -6.5),
    (-30, -7, -8.5),
]))
fillet.Radius = 3
doc.recompute()

fillet2 = body.newObject("PartDesign::Fillet", "Fillet001")
fillet2.Base = (fillet, edges_at(fillet, [(-1.1, -11.117, -2.5), (-1.1, 11.117, -2.5)]))
fillet2.Radius = 2
doc.recompute()

fillet3 = body.newObject("PartDesign::Fillet", "Fillet002")
fillet3.Base = (fillet2, edges_at(fillet2, [(12.229, -22, -2.5), (12.229, 22, -2.5)]))
fillet3.Radius = 0.43
doc.recompute()

fillet4 = body.newObject("PartDesign::Fillet", "Fillet003")
fillet4.Base = (fillet3, edges_at(fillet3, [(-1.1, -22, -5.25), (-1.1, 22, -5.25)]))
fillet4.Radius = 3

# Sketch on XY plane
sketch23 = body.newObject("Sketcher::SketchObject", "Sketch022")
sketch23.AttachmentSupport = (doc.getObject("XY_Plane"), [""])
sketch23.MapMode = "FlatFace"
sketch23.AttachmentOffset = App.Placement(App.Vector(0, 0, -9.5), App.Rotation())
sketch23.addGeometry([
    Part.ArcOfCircle(Part.Circle(App.Vector(29, 0, 0), App.Vector(0, 0, 1), 7.25), math.radians(90), math.radians(270)),
    Part.LineSegment(App.Vector(29, -7.25, 0), App.Vector(49, -7.25, 0)),
    Part.LineSegment(App.Vector(49, -7.25, 0), App.Vector(49, 7.25, 0)),
    Part.LineSegment(App.Vector(49, 7.25, 0), App.Vector(29, 7.25, 0)),
], False)
sketch23.addConstraint([
    Sketcher.Constraint("Tangent", 0, 2, 1, 1),
    Sketcher.Constraint("Coincident", 1, 2, 2, 1),
    Sketcher.Constraint("Coincident", 2, 2, 3, 1),
    Sketcher.Constraint("Tangent", 3, 2, 0, 1),
    Sketcher.Constraint("Horizontal", 1),
    Sketcher.Constraint("Vertical", 2),
    Sketcher.Constraint("Horizontal", 3),
    Sketcher.Constraint("PointOnObject", 0, 3, -1),
    Sketcher.Constraint("DistanceX", 1, 1, 1, 2, Q("20 mm")),
    Sketcher.Constraint("Radius", 0, Q("7.25 mm")),
    Sketcher.Constraint("DistanceX", -1, 1, 0, 3, Q("29 mm")),
])
pocket15 = body.newObject("PartDesign::Pocket", "Pocket014")
pocket15.Profile = sketch23
pocket15.Length = 4.5
pocket15.Reversed = True
doc.recompute()

chamfer = body.newObject("PartDesign::Chamfer", "Chamfer")
chamfer.Base = (pocket15, edges_at(pocket15, [(35.541, 6.1, -5), (35.541, -6.1, -5)]))
chamfer.Size = 1.14

# Sketch on XY plane
sketch24 = body.newObject("Sketcher::SketchObject", "Sketch023")
sketch24.AttachmentSupport = (doc.getObject("XY_Plane"), [""])
sketch24.MapMode = "FlatFace"
sketch24.addGeometry([
    Part.LineSegment(App.Vector(-4, -23.5, 0), App.Vector(-4, -24, 0)),  # 0
    Part.LineSegment(App.Vector(-4, -24, 0), App.Vector(46, -24, 0)),  # 1
    Part.LineSegment(App.Vector(46, -24, 0), App.Vector(46, -23.5, 0)),  # 2
    Part.LineSegment(App.Vector(46, -23.5, 0), App.Vector(-4, -23.5, 0)),  # 3
    Part.LineSegment(App.Vector(-4, 24, 0), App.Vector(-4, 23.5, 0)),  # 4
    Part.LineSegment(App.Vector(-4, 23.5, 0), App.Vector(46, 23.5, 0)),  # 5
    Part.LineSegment(App.Vector(46, 23.5, 0), App.Vector(46, 24, 0)),  # 6
    Part.LineSegment(App.Vector(46, 24, 0), App.Vector(-4, 24, 0)),  # 7
], False)
sketch24.addConstraint([
    Sketcher.Constraint("Coincident", 0, 2, 1, 1),
    Sketcher.Constraint("Coincident", 1, 2, 2, 1),
    Sketcher.Constraint("Coincident", 2, 2, 3, 1),
    Sketcher.Constraint("Coincident", 3, 2, 0, 1),
    Sketcher.Constraint("Coincident", 4, 2, 5, 1),
    Sketcher.Constraint("Coincident", 5, 2, 6, 1),
    Sketcher.Constraint("Coincident", 6, 2, 7, 1),
    Sketcher.Constraint("Coincident", 7, 2, 4, 1),
    Sketcher.Constraint("Vertical", 0),
    Sketcher.Constraint("Horizontal", 1),
    Sketcher.Constraint("Vertical", 2),
    Sketcher.Constraint("Horizontal", 3),
    Sketcher.Constraint("Vertical", 4),
    Sketcher.Constraint("Horizontal", 5),
    Sketcher.Constraint("Vertical", 6),
    Sketcher.Constraint("Horizontal", 7),
    Sketcher.Constraint("Symmetric", 3, 2, 4, 2, -1),
    Sketcher.Constraint("Symmetric", 1, 2, 6, 2, -1),
    Sketcher.Constraint("DistanceX", 1, 1, 1, 2, Q("50 mm")),
    Sketcher.Constraint("DistanceY", 0, 2, 0, 1, Q("0.5 mm")),
    Sketcher.Constraint("DistanceX", 0, 2, -1, 1, Q("4 mm")),
    Sketcher.Constraint("DistanceY", 0, 2, -1, 1, Q("24 mm")),
])
pocket16 = body.newObject("PartDesign::Pocket", "Pocket015")
pocket16.Profile = sketch24
pocket16.Length = 8.5
pocket16.Midplane = True

doc.recompute()
